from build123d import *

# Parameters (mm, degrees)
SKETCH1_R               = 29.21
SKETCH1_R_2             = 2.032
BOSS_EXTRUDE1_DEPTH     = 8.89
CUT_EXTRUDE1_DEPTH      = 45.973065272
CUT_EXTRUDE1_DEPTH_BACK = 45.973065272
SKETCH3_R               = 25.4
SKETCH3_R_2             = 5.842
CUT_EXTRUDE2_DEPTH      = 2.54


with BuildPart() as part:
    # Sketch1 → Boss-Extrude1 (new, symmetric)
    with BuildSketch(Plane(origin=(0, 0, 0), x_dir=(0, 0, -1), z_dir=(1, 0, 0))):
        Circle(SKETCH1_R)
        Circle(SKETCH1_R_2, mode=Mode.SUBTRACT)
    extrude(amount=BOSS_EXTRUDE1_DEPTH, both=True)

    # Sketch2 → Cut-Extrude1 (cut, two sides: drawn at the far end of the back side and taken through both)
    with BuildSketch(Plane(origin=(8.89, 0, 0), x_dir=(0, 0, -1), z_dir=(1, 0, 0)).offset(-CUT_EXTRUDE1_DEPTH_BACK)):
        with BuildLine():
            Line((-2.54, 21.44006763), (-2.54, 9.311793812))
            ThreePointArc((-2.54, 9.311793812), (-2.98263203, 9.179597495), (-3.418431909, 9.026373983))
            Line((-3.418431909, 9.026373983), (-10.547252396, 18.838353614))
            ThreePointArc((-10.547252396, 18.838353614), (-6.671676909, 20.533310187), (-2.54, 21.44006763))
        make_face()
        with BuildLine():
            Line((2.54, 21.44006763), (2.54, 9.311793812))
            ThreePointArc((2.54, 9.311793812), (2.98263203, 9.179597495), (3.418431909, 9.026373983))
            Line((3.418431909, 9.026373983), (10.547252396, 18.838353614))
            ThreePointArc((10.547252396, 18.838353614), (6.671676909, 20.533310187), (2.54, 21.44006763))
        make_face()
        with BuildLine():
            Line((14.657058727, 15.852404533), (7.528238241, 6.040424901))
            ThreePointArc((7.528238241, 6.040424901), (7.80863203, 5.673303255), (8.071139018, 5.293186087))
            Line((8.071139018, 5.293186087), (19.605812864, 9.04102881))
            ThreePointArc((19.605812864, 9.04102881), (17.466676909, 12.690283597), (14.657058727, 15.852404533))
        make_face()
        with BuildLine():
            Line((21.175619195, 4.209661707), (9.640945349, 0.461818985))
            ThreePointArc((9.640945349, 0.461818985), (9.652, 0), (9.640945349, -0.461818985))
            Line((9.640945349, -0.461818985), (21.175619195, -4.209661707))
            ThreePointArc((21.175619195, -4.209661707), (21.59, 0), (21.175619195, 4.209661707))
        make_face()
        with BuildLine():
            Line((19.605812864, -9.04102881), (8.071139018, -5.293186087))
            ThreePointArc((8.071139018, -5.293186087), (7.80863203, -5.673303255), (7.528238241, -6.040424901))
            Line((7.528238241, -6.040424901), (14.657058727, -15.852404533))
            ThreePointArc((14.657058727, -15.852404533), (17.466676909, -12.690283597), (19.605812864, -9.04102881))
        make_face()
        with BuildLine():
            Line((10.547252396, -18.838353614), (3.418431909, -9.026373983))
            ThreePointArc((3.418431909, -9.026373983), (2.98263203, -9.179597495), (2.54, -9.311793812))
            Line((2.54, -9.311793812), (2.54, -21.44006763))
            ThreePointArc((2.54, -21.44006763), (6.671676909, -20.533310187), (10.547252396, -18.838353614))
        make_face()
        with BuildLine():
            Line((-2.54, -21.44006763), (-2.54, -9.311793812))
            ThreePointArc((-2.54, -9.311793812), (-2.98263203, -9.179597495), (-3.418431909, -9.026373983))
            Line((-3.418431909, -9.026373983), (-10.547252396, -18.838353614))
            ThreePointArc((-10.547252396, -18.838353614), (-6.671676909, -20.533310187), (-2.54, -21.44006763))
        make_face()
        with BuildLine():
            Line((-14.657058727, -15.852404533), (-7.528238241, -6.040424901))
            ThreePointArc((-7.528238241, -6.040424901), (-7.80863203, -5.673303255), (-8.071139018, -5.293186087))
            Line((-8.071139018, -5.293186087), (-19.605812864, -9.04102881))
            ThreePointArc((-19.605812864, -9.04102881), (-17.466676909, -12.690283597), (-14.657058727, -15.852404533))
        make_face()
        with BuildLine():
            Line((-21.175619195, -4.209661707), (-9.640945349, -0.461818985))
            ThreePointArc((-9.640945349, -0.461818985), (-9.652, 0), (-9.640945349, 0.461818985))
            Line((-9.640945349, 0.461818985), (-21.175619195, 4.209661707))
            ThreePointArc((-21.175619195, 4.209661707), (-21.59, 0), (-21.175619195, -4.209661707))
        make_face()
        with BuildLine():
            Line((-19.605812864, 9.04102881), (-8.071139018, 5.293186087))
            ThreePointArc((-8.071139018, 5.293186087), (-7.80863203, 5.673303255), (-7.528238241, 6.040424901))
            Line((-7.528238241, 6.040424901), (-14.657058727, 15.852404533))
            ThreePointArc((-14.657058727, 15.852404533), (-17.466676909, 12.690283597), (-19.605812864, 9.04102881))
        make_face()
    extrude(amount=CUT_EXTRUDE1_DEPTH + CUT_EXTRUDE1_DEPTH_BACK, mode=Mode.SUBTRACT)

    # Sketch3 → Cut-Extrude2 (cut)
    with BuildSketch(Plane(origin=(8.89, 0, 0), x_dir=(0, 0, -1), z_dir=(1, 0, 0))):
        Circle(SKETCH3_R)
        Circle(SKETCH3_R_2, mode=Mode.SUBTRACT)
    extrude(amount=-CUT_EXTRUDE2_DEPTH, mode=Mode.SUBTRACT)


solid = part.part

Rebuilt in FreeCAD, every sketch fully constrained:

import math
import FreeCAD as App
import Part
import Sketcher

V = App.Vector
Q = App.Units.Quantity

doc = App.newDocument("Part")
body = doc.addObject("PartDesign::Body", "Body")

sketch1 = body.newObject("Sketcher::SketchObject", "Sketch")
sketch1.AttachmentSupport = (doc.getObject("YZ_Plane"), [""])
sketch1.MapMode = "FlatFace"
sketch1.addGeometry([
    Part.Circle(V(0, 0, 0), V(0, 0, 1), 29.2),
    Part.Circle(V(0, 0, 0), V(0, 0, 1), 2),
], False)
sketch1.addConstraint([
    Sketcher.Constraint("Coincident", 0, 3, -1, 1),
    Sketcher.Constraint("Coincident", 1, 3, -1, 1),
    Sketcher.Constraint("Diameter", 0, Q("2.3 in")),
    Sketcher.Constraint("Diameter", 1, Q("0.16 in")),
])
pad1 = body.newObject("PartDesign::Pad", "Pad")
pad1.Profile = sketch1
pad1.Length = Q("0.7 in")
pad1.Midplane = True

sketch2 = body.newObject("Sketcher::SketchObject", "Sketch001")
sketch2.AttachmentSupport = (doc.getObject("YZ_Plane"), [""])
sketch2.MapMode = "FlatFace"
sketch2.AttachmentOffset = App.Placement(V(0, 0, 0.35 * 25.4), App.Rotation())
sketch2.addGeometry([
    Part.LineSegment(V(9.3, 2.5, 0), V(21.4, 2.5, 0)),
    Part.ArcOfCircle(Part.Circle(V(0, 0, 0), V(0, 0, 1), 21.6), math.radians(7), math.radians(29)),
    Part.LineSegment(V(18.8, 10.5, 0), V(9, 3.4, 0)),
    Part.ArcOfCircle(Part.Circle(V(0, 0, 0), V(0, 0, 1), 9.7), math.radians(15.26), math.radians(20.74)),
    Part.LineSegment(V(21.4, -2.5, 0), V(9.3, -2.5, 0)),
    Part.ArcOfCircle(Part.Circle(V(0, 0, 0), V(0, 0, 1), 9.7), math.radians(-20.74), math.radians(-15.26)),
    Part.LineSegment(V(9, -3.4, 0), V(18.8, -10.5, 0)),
    Part.ArcOfCircle(Part.Circle(V(0, 0, 0), V(0, 0, 1), 21.6), math.radians(-29), math.radians(-7)),
    Part.LineSegment(V(15.9, -14.7, 0), V(6, -7.5, 0)),
    Part.ArcOfCircle(Part.Circle(V(0, 0, 0), V(0, 0, 1), 9.7), math.radians(-56.74), math.radians(-51.26)),
    Part.LineSegment(V(5.3, -8.1, 0), V(9, -19.6, 0)),
    Part.ArcOfCircle(Part.Circle(V(0, 0, 0), V(0, 0, 1), 21.6), math.radians(-65), math.radians(-43)),
    Part.LineSegment(V(4.2, -21.2, 0), V(0.5, -9.6, 0)),
    Part.ArcOfCircle(Part.Circle(V(0, 0, 0), V(0, 0, 1), 9.7), math.radians(-92.74), math.radians(-87.26)),
    Part.LineSegment(V(-0.5, -9.6, 0), V(-4.2, -21.2, 0)),
    Part.ArcOfCircle(Part.Circle(V(0, 0, 0), V(0, 0, 1), 21.6), math.radians(-101), math.radians(-79)),
    Part.LineSegment(V(-9, -19.6, 0), V(-5.3, -8.1, 0)),
    Part.ArcOfCircle(Part.Circle(V(0, 0, 0), V(0, 0, 1), 9.7), math.radians(-128.74), math.radians(-123.26)),
    Part.LineSegment(V(-6, -7.5, 0), V(-15.9, -14.7, 0)),
    Part.ArcOfCircle(Part.Circle(V(0, 0, 0), V(0, 0, 1), 21.6), math.radians(-137), math.radians(-115)),
    Part.LineSegment(V(-18.8, -10.5, 0), V(-9, -3.4, 0)),
    Part.ArcOfCircle(Part.Circle(V(0, 0, 0), V(0, 0, 1), 9.7), math.radians(-164.74), math.radians(-159.26)),
    Part.LineSegment(V(-9.3, -2.5, 0), V(-21.4, -2.5, 0)),
    Part.ArcOfCircle(Part.Circle(V(0, 0, 0), V(0, 0, 1), 21.6), math.radians(-173), math.radians(-151)),
    Part.LineSegment(V(-21.4, 2.5, 0), V(-9.3, 2.5, 0)),
    Part.ArcOfCircle(Part.Circle(V(0, 0, 0), V(0, 0, 1), 9.7), math.radians(159.26), math.radians(164.74)),
    Part.LineSegment(V(-9, 3.4, 0), V(-18.8, 10.5, 0)),
    Part.ArcOfCircle(Part.Circle(V(0, 0, 0), V(0, 0, 1), 21.6), math.radians(151), math.radians(173)),
    Part.LineSegment(V(-15.9, 14.7, 0), V(-6, 7.5, 0)),
    Part.ArcOfCircle(Part.Circle(V(0, 0, 0), V(0, 0, 1), 9.7), math.radians(123.26), math.radians(128.74)),
    Part.LineSegment(V(-5.3, 8.1, 0), V(-9, 19.6, 0)),
    Part.ArcOfCircle(Part.Circle(V(0, 0, 0), V(0, 0, 1), 21.6), math.radians(115), math.radians(137)),
    Part.LineSegment(V(-4.2, 21.2, 0), V(-0.5, 9.6, 0)),
    Part.ArcOfCircle(Part.Circle(V(0, 0, 0), V(0, 0, 1), 9.7), math.radians(87.26), math.radians(92.74)),
    Part.LineSegment(V(0.5, 9.6, 0), V(4.2, 21.2, 0)),
    Part.ArcOfCircle(Part.Circle(V(0, 0, 0), V(0, 0, 1), 21.6), math.radians(79), math.radians(101)),
    Part.LineSegment(V(9, 19.6, 0), V(5.3, 8.1, 0)),
    Part.ArcOfCircle(Part.Circle(V(0, 0, 0), V(0, 0, 1), 9.7), math.radians(51.26), math.radians(56.74)),
    Part.LineSegment(V(6, 7.5, 0), V(15.9, 14.7, 0)),
    Part.ArcOfCircle(Part.Circle(V(0, 0, 0), V(0, 0, 1), 21.6), math.radians(43), math.radians(65)),
], False)
sketch2.addConstraint([
    Sketcher.Constraint("Coincident", 0, 2, 1, 1),
    Sketcher.Constraint("Coincident", 1, 2, 2, 1),
    Sketcher.Constraint("Coincident", 2, 2, 3, 2),
    Sketcher.Constraint("Coincident", 3, 1, 0, 1),
    Sketcher.Constraint("Coincident", 4, 2, 5, 2),
    Sketcher.Constraint("Coincident", 5, 1, 6, 1),
    Sketcher.Constraint("Coincident", 6, 2, 7, 1),
    Sketcher.Constraint("Coincident", 7, 2, 4, 1),
    Sketcher.Constraint("Coincident", 8, 2, 9, 2),
    Sketcher.Constraint("Coincident", 9, 1, 10, 1),
    Sketcher.Constraint("Coincident", 10, 2, 11, 1),
    Sketcher.Constraint("Coincident", 11, 2, 8, 1),
    Sketcher.Constraint("Coincident", 12, 2, 13, 2),
    Sketcher.Constraint("Coincident", 13, 1, 14, 1),
    Sketcher.Constraint("Coincident", 14, 2, 15, 1),
    Sketcher.Constraint("Coincident", 15, 2, 12, 1),
    Sketcher.Constraint("Coincident", 16, 2, 17, 2),
    Sketcher.Constraint("Coincident", 17, 1, 18, 1),
    Sketcher.Constraint("Coincident", 18, 2, 19, 1),
    Sketcher.Constraint("Coincident", 19, 2, 16, 1),
    Sketcher.Constraint("Coincident", 20, 2, 21, 2),
    Sketcher.Constraint("Coincident", 21, 1, 22, 1),
    Sketcher.Constraint("Coincident", 22, 2, 23, 1),
    Sketcher.Constraint("Coincident", 23, 2, 20, 1),
    Sketcher.Constraint("Coincident", 24, 2, 25, 2),
    Sketcher.Constraint("Coincident", 25, 1, 26, 1),
    Sketcher.Constraint("Coincident", 26, 2, 27, 1),
    Sketcher.Constraint("Coincident", 27, 2, 24, 1),
    Sketcher.Constraint("Coincident", 28, 2, 29, 2),
    Sketcher.Constraint("Coincident", 29, 1, 30, 1),
    Sketcher.Constraint("Coincident", 30, 2, 31, 1),
    Sketcher.Constraint("Coincident", 31, 2, 28, 1),
    Sketcher.Constraint("Coincident", 32, 2, 33, 2),
    Sketcher.Constraint("Coincident", 33, 1, 34, 1),
    Sketcher.Constraint("Coincident", 34, 2, 35, 1),
    Sketcher.Constraint("Coincident", 35, 2, 32, 1),
    Sketcher.Constraint("Coincident", 36, 2, 37, 2),
    Sketcher.Constraint("Coincident", 37, 1, 38, 1),
    Sketcher.Constraint("Coincident", 38, 2, 39, 1),
    Sketcher.Constraint("Coincident", 39, 2, 36, 1),
    Sketcher.Constraint("Horizontal", 0),
    Sketcher.Constraint("Horizontal", 4),
    Sketcher.Constraint("Horizontal", 22),
    Sketcher.Constraint("Horizontal", 24),
    Sketcher.Constraint("Coincident", 1, 3, -1, 1),
    Sketcher.Constraint("Coincident", 3, 3, -1, 1),
    Sketcher.Constraint("Coincident", 5, 3, -1, 1),
    Sketcher.Constraint("Coincident", 7, 3, -1, 1),
    Sketcher.Constraint("Coincident", 9, 3, -1, 1),
    Sketcher.Constraint("Coincident", 11, 3, -1, 1),
    Sketcher.Constraint("Coincident", 13, 3, -1, 1),
    Sketcher.Constraint("Coincident", 15, 3, -1, 1),
    Sketcher.Constraint("Coincident", 17, 3, -1, 1),
    Sketcher.Constraint("Coincident", 19, 3, -1, 1),
    Sketcher.Constraint("Coincident", 21, 3, -1, 1),
    Sketcher.Constraint("Coincident", 23, 3, -1, 1),
    Sketcher.Constraint("Coincident", 25, 3, -1, 1),
    Sketcher.Constraint("Coincident", 27, 3, -1, 1),
    Sketcher.Constraint("Coincident", 29, 3, -1, 1),
    Sketcher.Constraint("Coincident", 31, 3, -1, 1),
    Sketcher.Constraint("Coincident", 33, 3, -1, 1),
    Sketcher.Constraint("Coincident", 35, 3, -1, 1),
    Sketcher.Constraint("Coincident", 37, 3, -1, 1),
    Sketcher.Constraint("Coincident", 39, 3, -1, 1),
    Sketcher.Constraint("Equal", 3, 5),
    Sketcher.Constraint("Equal", 1, 7),
    Sketcher.Constraint("Equal", 5, 9),
    Sketcher.Constraint("Equal", 7, 11),
    Sketcher.Constraint("Equal", 9, 13),
    Sketcher.Constraint("Equal", 11, 15),
    Sketcher.Constraint("Equal", 13, 17),
    Sketcher.Constraint("Equal", 15, 19),
    Sketcher.Constraint("Equal", 17, 21),
    Sketcher.Constraint("Equal", 19, 23),
    Sketcher.Constraint("Equal", 21, 25),
    Sketcher.Constraint("Equal", 23, 27),
    Sketcher.Constraint("Equal", 25, 29),
    Sketcher.Constraint("Equal", 27, 31),
    Sketcher.Constraint("Equal", 29, 33),
    Sketcher.Constraint("Equal", 31, 35),
    Sketcher.Constraint("Equal", 33, 37),
    Sketcher.Constraint("Equal", 35, 39),
    Sketcher.Constraint("Parallel", 6, 8),
    Sketcher.Constraint("Parallel", 10, 12),
    Sketcher.Constraint("Parallel", 14, 16),
    Sketcher.Constraint("Parallel", 2, 18),
    Sketcher.Constraint("Parallel", 18, 20),
    Sketcher.Constraint("Parallel", 8, 26),
    Sketcher.Constraint("Parallel", 26, 28),
    Sketcher.Constraint("Parallel", 12, 30),
    Sketcher.Constraint("Parallel", 30, 32),
    Sketcher.Constraint("Parallel", 16, 34),
    Sketcher.Constraint("Parallel", 34, 36),
    Sketcher.Constraint("Parallel", 20, 38),
    Sketcher.Constraint("Horizontal", 12, 2, 13, 1),
    Sketcher.Constraint("Horizontal", 14, 2, 15, 2),
    Sketcher.Constraint("Horizontal", 9, 1, 16, 2),
    Sketcher.Constraint("Horizontal", 8, 2, 17, 1),
    Sketcher.Constraint("Horizontal", 11, 2, 18, 2),
    Sketcher.Constraint("Horizontal", 5, 1, 20, 2),
    Sketcher.Constraint("Horizontal", 7, 2, 21, 1),
    Sketcher.Constraint("Horizontal", 3, 1, 24, 2),
    Sketcher.Constraint("Horizontal", 2, 2, 25, 1),
    Sketcher.Constraint("Horizontal", 32, 2, 33, 1),
    Sketcher.Constraint("Horizontal", 29, 1, 36, 2),
    Sketcher.Constraint("Horizontal", 28, 2, 37, 1),
    Sketcher.Constraint("Vertical", 3, 1, 4, 2),
    Sketcher.Constraint("Vertical", 2, 2, 5, 1),
    Sketcher.Constraint("Vertical", 17, 1, 28, 2),
    Sketcher.Constraint("Vertical", 16, 2, 29, 1),
    Sketcher.Constraint("Vertical", 13, 1, 32, 2),
    Sketcher.Constraint("Equal", 6, 8),
    Sketcher.Constraint("Equal", 8, 10),
    Sketcher.Constraint("Equal", 10, 12),
    Sketcher.Constraint("Radius", 1, Q("0.85 in")),
    Sketcher.Constraint("Radius", 3, Q("0.38 in")),
    Sketcher.Constraint("Angle", 2, Q("-144 deg")),
    Sketcher.Constraint("Angle", 10, Q("-72 deg")),
    Sketcher.Constraint("DistanceY", -1, 1, 0, 2, Q("0.1 in")),
    Sketcher.Constraint("DistanceY", 9, 1, 8, 2, Q("0.542901 mm")),
])
pocket1 = body.newObject("PartDesign::Pocket", "Pocket")
pocket1.Profile = sketch2
pocket1.Type = "ThroughAll"
pocket1.Midplane = True

sketch3 = body.newObject("Sketcher::SketchObject", "Sketch002")
sketch3.AttachmentSupport = (doc.getObject("YZ_Plane"), [""])
sketch3.MapMode = "FlatFace"
sketch3.AttachmentOffset = App.Placement(V(0, 0, 0.35 * 25.4), App.Rotation())
sketch3.addGeometry([
    Part.Circle(V(0, 0, 0), V(0, 0, 1), 25),
    Part.Circle(V(0, 0, 0), V(0, 0, 1), 6),
], False)
sketch3.addConstraint([
    Sketcher.Constraint("Coincident", 0, 3, -1, 1),
    Sketcher.Constraint("Coincident", 1, 3, -1, 1),
    Sketcher.Constraint("Diameter", 0, Q("2 in")),
    Sketcher.Constraint("Diameter", 1, Q("0.46 in")),
])
pocket2 = body.newObject("PartDesign::Pocket", "Pocket001")
pocket2.Profile = sketch3
pocket2.Length = Q("0.1 in")

doc.recompute()
